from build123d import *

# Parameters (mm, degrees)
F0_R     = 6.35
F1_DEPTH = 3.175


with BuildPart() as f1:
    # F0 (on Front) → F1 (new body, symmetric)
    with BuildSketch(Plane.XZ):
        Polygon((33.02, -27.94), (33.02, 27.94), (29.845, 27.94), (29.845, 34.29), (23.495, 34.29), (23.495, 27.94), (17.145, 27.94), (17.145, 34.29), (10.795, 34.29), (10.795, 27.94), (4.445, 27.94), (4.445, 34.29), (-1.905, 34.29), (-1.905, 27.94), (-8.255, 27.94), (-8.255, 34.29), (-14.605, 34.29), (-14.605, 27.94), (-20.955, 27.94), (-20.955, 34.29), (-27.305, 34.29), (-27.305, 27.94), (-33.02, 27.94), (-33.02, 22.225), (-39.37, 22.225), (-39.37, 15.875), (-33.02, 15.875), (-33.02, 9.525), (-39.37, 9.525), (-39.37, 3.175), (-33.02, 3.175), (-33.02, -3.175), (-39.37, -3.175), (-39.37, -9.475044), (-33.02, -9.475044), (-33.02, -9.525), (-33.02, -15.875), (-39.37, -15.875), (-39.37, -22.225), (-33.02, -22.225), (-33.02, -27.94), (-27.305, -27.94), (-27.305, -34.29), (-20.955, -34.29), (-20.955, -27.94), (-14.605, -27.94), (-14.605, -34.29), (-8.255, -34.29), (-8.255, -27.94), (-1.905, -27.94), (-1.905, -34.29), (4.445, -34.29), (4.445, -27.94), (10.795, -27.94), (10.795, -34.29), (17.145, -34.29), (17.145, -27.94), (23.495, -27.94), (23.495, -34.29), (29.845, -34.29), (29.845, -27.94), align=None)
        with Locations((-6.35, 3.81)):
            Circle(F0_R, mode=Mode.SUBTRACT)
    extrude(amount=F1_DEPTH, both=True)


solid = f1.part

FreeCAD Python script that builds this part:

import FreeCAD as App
import Part
import Sketcher
from FreeCAD import Vector
Q = App.Units.Quantity


def add_polygon(sketch, points):
    """Adds a closed chain of lines whose ends are joined by coincident constraints."""
    first, n = sketch.GeometryCount, len(points)
    for a, b in zip(points, points[1:] + points[:1]):
        sketch.addGeometry(Part.LineSegment(App.Vector(*a, 0), App.Vector(*b, 0)), False)
    for i in range(n):
        sketch.addConstraint(Sketcher.Constraint("Coincident", first + i, 2, first + (i + 1) % n, 1))

doc = App.newDocument("Part")
body = doc.addObject("PartDesign::Body", "Body")

# Sketch on XZ plane
sketch1 = body.newObject("Sketcher::SketchObject", "Sketch")
sketch1.AttachmentSupport = (doc.getObject("XZ_Plane"), [""])
sketch1.MapMode = "FlatFace"
add_polygon(sketch1, [(33, -27.9), (33, 27.9), (29.8, 27.9), (29.8, 34.3), (23.5, 34.3), (23.5, 27.9), (17.1, 27.9), (17.1, 34.3), (10.8, 34.3), (10.8, 27.9), (4.4, 27.9), (4.4, 34.3), (-1.9, 34.3), (-1.9, 27.9), (-8.3, 27.9), (-8.3, 34.3), (-14.6, 34.3), (-14.6, 27.9), (-21, 27.9), (-21, 34.3), (-27.3, 34.3), (-27.3, 27.9), (-33, 27.9), (-33, 22.2), (-39.4, 22.2), (-39.4, 15.9), (-33, 15.9), (-33, 9.5), (-39.4, 9.5), (-39.4, 3.2), (-33, 3.2), (-33, -3.2), (-39.4, -3.2), (-39.4, -9.5), (-33, -9.5), (-33, -15.9), (-39.4, -15.9), (-39.4, -22.2), (-33, -22.2), (-33, -27.9), (-27.3, -27.9), (-27.3, -34.3), (-21, -34.3), (-21, -27.9), (-14.6, -27.9), (-14.6, -34.3), (-8.3, -34.3), (-8.3, -27.9), (-1.9, -27.9), (-1.9, -34.3), (4.4, -34.3), (4.4, -27.9), (10.8, -27.9), (10.8, -34.3), (17.1, -34.3), (17.1, -27.9), (23.5, -27.9), (23.5, -34.3), (29.8, -34.3), (29.8, -27.9)])  # lines 0-59
sketch1.addGeometry(Part.Circle(Vector(-6.3, 3.8, 0), Vector(0, 0, 1), 6.3), False)  # 60
sketch1.addConstraint(Sketcher.Constraint("Vertical", 0))
sketch1.addConstraint(Sketcher.Constraint("Horizontal", 1))
sketch1.addConstraint(Sketcher.Constraint("Vertical", 2))
sketch1.addConstraint(Sketcher.Constraint("Horizontal", 3))
sketch1.addConstraint(Sketcher.Constraint("Vertical", 4))
sketch1.addConstraint(Sketcher.Constraint("Horizontal", 5))
sketch1.addConstraint(Sketcher.Constraint("Vertical", 6))
sketch1.addConstraint(Sketcher.Constraint("Horizontal", 7))
sketch1.addConstraint(Sketcher.Constraint("Vertical", 8))
sketch1.addConstraint(Sketcher.Constraint("Horizontal", 9))
sketch1.addConstraint(Sketcher.Constraint("Vertical", 10))
sketch1.addConstraint(Sketcher.Constraint("Horizontal", 11))
sketch1.addConstraint(Sketcher.Constraint("Vertical", 12))
sketch1.addConstraint(Sketcher.Constraint("Horizontal", 13))
sketch1.addConstraint(Sketcher.Constraint("Vertical", 14))
sketch1.addConstraint(Sketcher.Constraint("Horizontal", 15))
sketch1.addConstraint(Sketcher.Constraint("Vertical", 16))
sketch1.addConstraint(Sketcher.Constraint("Horizontal", 17))
sketch1.addConstraint(Sketcher.Constraint("Vertical", 18))
sketch1.addConstraint(Sketcher.Constraint("Horizontal", 19))
sketch1.addConstraint(Sketcher.Constraint("Vertical", 20))
sketch1.addConstraint(Sketcher.Constraint("Horizontal", 21))
sketch1.addConstraint(Sketcher.Constraint("Vertical", 22))
sketch1.addConstraint(Sketcher.Constraint("Horizontal", 23))
sketch1.addConstraint(Sketcher.Constraint("Vertical", 24))
sketch1.addConstraint(Sketcher.Constraint("Horizontal", 25))
sketch1.addConstraint(Sketcher.Constraint("Vertical", 26))
sketch1.addConstraint(Sketcher.Constraint("Horizontal", 27))
sketch1.addConstraint(Sketcher.Constraint("Vertical", 28))
sketch1.addConstraint(Sketcher.Constraint("Horizontal", 29))
sketch1.addConstraint(Sketcher.Constraint("Vertical", 30))
sketch1.addConstraint(Sketcher.Constraint("Horizontal", 31))
sketch1.addConstraint(Sketcher.Constraint("Vertical", 32))
sketch1.addConstraint(Sketcher.Constraint("Horizontal", 33))
sketch1.addConstraint(Sketcher.Constraint("Vertical", 34))
sketch1.addConstraint(Sketcher.Constraint("Horizontal", 35))
sketch1.addConstraint(Sketcher.Constraint("Vertical", 36))
sketch1.addConstraint(Sketcher.Constraint("Horizontal", 37))
sketch1.addConstraint(Sketcher.Constraint("Vertical", 38))
sketch1.addConstraint(Sketcher.Constraint("Horizontal", 39))
sketch1.addConstraint(Sketcher.Constraint("Vertical", 40))
sketch1.addConstraint(Sketcher.Constraint("Horizontal", 41))
sketch1.addConstraint(Sketcher.Constraint("Vertical", 42))
sketch1.addConstraint(Sketcher.Constraint("Horizontal", 43))
sketch1.addConstraint(Sketcher.Constraint("Vertical", 44))
sketch1.addConstraint(Sketcher.Constraint("Horizontal", 45))
sketch1.addConstraint(Sketcher.Constraint("Vertical", 46))
sketch1.addConstraint(Sketcher.Constraint("Horizontal", 47))
sketch1.addConstraint(Sketcher.Constraint("Vertical", 48))
sketch1.addConstraint(Sketcher.Constraint("Horizontal", 49))
sketch1.addConstraint(Sketcher.Constraint("Vertical", 50))
sketch1.addConstraint(Sketcher.Constraint("Horizontal", 51))
sketch1.addConstraint(Sketcher.Constraint("Vertical", 52))
sketch1.addConstraint(Sketcher.Constraint("Horizontal", 53))
sketch1.addConstraint(Sketcher.Constraint("Vertical", 54))
sketch1.addConstraint(Sketcher.Constraint("Horizontal", 55))
sketch1.addConstraint(Sketcher.Constraint("Vertical", 56))
sketch1.addConstraint(Sketcher.Constraint("Horizontal", 57))
sketch1.addConstraint(Sketcher.Constraint("Vertical", 58))
sketch1.addConstraint(Sketcher.Constraint("Horizontal", 59))
sketch1.addConstraint(Sketcher.Constraint("Symmetric", 0, 2, 38, 2, -1, 1))
sketch1.addConstraint(Sketcher.Constraint("Symmetric", 21, 2, 59, 2, -1, 1))
sketch1.addConstraint(Sketcher.Constraint("Symmetric", 28, 2, 31, 2, -1))
sketch1.addConstraint(Sketcher.Constraint("Symmetric", 25, 2, 34, 2, -1))
sketch1.addConstraint(Sketcher.Constraint("Symmetric", 23, 2, 36, 2, -1))
sketch1.addConstraint(Sketcher.Constraint("Symmetric", 20, 2, 39, 2, -1))
sketch1.addConstraint(Sketcher.Constraint("Symmetric", 18, 2, 41, 2, -1))
sketch1.addConstraint(Sketcher.Constraint("Symmetric", 16, 2, 43, 2, -1))
sketch1.addConstraint(Sketcher.Constraint("Symmetric", 14, 2, 45, 2, -1))
sketch1.addConstraint(Sketcher.Constraint("Symmetric", 12, 2, 47, 2, -1))
sketch1.addConstraint(Sketcher.Constraint("Symmetric", 10, 2, 49, 2, -1))
sketch1.addConstraint(Sketcher.Constraint("Symmetric", 8, 2, 51, 2, -1))
sketch1.addConstraint(Sketcher.Constraint("Symmetric", 6, 2, 53, 2, -1))
sketch1.addConstraint(Sketcher.Constraint("Symmetric", 4, 2, 55, 2, -1))
sketch1.addConstraint(Sketcher.Constraint("Symmetric", 2, 2, 57, 2, -1))
sketch1.addConstraint(Sketcher.Constraint("Horizontal", 1, 2, 4, 2))
sketch1.addConstraint(Sketcher.Constraint("Horizontal", 3, 2, 6, 2))
sketch1.addConstraint(Sketcher.Constraint("Horizontal", 5, 2, 8, 2))
sketch1.addConstraint(Sketcher.Constraint("Horizontal", 7, 2, 10, 2))
sketch1.addConstraint(Sketcher.Constraint("Horizontal", 9, 2, 12, 2))
sketch1.addConstraint(Sketcher.Constraint("Horizontal", 11, 2, 14, 2))
sketch1.addConstraint(Sketcher.Constraint("Horizontal", 13, 2, 16, 2))
sketch1.addConstraint(Sketcher.Constraint("Horizontal", 15, 2, 18, 2))
sketch1.addConstraint(Sketcher.Constraint("Vertical", 22, 2, 25, 2))
sketch1.addConstraint(Sketcher.Constraint("Vertical", 24, 2, 27, 2))
sketch1.addConstraint(Sketcher.Constraint("Vertical", 26, 2, 29, 2))
sketch1.addConstraint(Sketcher.Constraint("Equal", 3, 5))
sketch1.addConstraint(Sketcher.Constraint("Equal", 5, 7))
sketch1.addConstraint(Sketcher.Constraint("Equal", 7, 9))
sketch1.addConstraint(Sketcher.Constraint("Equal", 9, 11))
sketch1.addConstraint(Sketcher.Constraint("Equal", 11, 13))
sketch1.addConstraint(Sketcher.Constraint("Equal", 13, 15))
sketch1.addConstraint(Sketcher.Constraint("Equal", 15, 17))
sketch1.addConstraint(Sketcher.Constraint("Equal", 17, 19))
sketch1.addConstraint(Sketcher.Constraint("Equal", 19, 23))
sketch1.addConstraint(Sketcher.Constraint("Equal", 57, 2))
sketch1.addConstraint(Sketcher.Constraint("Equal", 39, 22))
sketch1.addConstraint(Sketcher.Constraint("Equal", 20, 24))
sketch1.addConstraint(Sketcher.Constraint("Equal", 24, 26))
sketch1.addConstraint(Sketcher.Constraint("Equal", 26, 28))
sketch1.addConstraint(Sketcher.Constraint("Equal", 28, 30))
sketch1.addConstraint(Sketcher.Constraint("Diameter", 60, Q("0.5 in")))
sketch1.addConstraint(Sketcher.Constraint("DistanceY", 0, 1, 0, 2, Q("2.2 in")))
sketch1.addConstraint(Sketcher.Constraint("DistanceX", 3, 2, 3, 1, Q("0.25 in")))
sketch1.addConstraint(Sketcher.Constraint("DistanceX", -1, 1, 0, 2, Q("1.3 in")))
sketch1.addConstraint(Sketcher.Constraint("DistanceX", 60, 3, -1, 1, Q("0.25 in")))
sketch1.addConstraint(Sketcher.Constraint("DistanceY", -1, 1, 60, 3, Q("0.15 in")))
sketch1.addConstraint(Sketcher.Constraint("DistanceY", 32, 2, 32, 1, Q("6.300044 mm")))
pad1 = body.newObject("PartDesign::Pad", "Pad")
pad1.Profile = sketch1
pad1.Length = Q("0.25 in")
pad1.Midplane = True

doc.recompute()
